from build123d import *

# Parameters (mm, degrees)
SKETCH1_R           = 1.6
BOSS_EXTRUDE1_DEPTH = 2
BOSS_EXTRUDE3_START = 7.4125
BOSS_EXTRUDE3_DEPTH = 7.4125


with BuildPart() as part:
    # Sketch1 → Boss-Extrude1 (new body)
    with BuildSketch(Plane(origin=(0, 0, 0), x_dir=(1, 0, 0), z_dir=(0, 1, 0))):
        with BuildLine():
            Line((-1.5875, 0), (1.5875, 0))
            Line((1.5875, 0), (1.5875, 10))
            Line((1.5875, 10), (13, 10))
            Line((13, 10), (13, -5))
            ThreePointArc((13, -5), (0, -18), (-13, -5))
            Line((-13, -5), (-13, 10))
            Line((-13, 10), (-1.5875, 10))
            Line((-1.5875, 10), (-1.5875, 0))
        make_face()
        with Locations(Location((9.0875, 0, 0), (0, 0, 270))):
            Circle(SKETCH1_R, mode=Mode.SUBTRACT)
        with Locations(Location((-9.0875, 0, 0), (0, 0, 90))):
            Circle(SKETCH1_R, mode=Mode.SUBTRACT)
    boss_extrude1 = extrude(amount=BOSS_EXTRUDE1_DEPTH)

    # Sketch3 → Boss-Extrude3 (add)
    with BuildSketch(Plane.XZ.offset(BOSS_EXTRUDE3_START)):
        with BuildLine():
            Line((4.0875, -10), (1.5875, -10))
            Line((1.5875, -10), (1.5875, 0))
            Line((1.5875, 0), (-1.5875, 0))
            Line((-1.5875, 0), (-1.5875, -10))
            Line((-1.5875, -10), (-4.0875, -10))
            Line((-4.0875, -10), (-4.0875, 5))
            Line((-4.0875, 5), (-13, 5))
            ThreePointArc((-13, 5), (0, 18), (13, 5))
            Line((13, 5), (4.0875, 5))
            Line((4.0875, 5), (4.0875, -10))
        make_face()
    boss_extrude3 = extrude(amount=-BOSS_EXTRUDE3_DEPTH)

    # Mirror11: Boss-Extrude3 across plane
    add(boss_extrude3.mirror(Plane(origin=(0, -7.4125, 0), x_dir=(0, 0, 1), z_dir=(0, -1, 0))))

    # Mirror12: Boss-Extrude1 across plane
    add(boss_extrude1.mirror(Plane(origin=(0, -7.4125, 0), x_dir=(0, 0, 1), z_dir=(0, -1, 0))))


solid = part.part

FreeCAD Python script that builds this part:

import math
import FreeCAD as App
import Part
import Sketcher
from FreeCAD import Vector
Q = App.Units.Quantity

doc = App.newDocument("Part")
body = doc.addObject("PartDesign::Body", "Body")

sketch1 = body.newObject("Sketcher::SketchObject", "Sketch")
sketch1.AttachmentSupport = (doc.getObject("XZ_Plane"), [""])
sketch1.MapMode = "FlatFace"
sketch1.addGeometry([
    Part.LineSegment(Vector(1.5875, 0, 0), Vector(-1.5875, 0, 0)),
    Part.LineSegment(Vector(-1.5875, 0, 0), Vector(-1.5875, -10, 0)),
    Part.LineSegment(Vector(-1.5875, -10, 0), Vector(-13, -10, 0)),
    Part.LineSegment(Vector(-13, -10, 0), Vector(-13, 5, 0)),
    Part.ArcOfCircle(Part.Circle(Vector(0, 5, 0), Vector(0, 0, 1), 13), math.radians(0), math.radians(180)),
    Part.LineSegment(Vector(13, 5, 0), Vector(13, -10, 0)),
    Part.LineSegment(Vector(13, -10, 0), Vector(1.5875, -10, 0)),
    Part.LineSegment(Vector(1.5875, -10, 0), Vector(1.5875, 0, 0)),
    Part.Circle(Vector(9.0875, 0, 0), Vector(0, 0, 1), 1.6),
    Part.Circle(Vector(-9.0875, 0, 0), Vector(0, 0, 1), 1.6),
], False)
sketch1.addConstraint([
    Sketcher.Constraint("Coincident", 0, 2, 1, 1),
    Sketcher.Constraint("Coincident", 1, 2, 2, 1),
    Sketcher.Constraint("Coincident", 2, 2, 3, 1),
    Sketcher.Constraint("Tangent", 3, 2, 4, 2),
    Sketcher.Constraint("Tangent", 4, 1, 5, 1),
    Sketcher.Constraint("Coincident", 5, 2, 6, 1),
    Sketcher.Constraint("Coincident", 6, 2, 7, 1),
    Sketcher.Constraint("Coincident", 7, 2, 0, 1),
    Sketcher.Constraint("Horizontal", 0),
    Sketcher.Constraint("Vertical", 1),
    Sketcher.Constraint("Horizontal", 2),
    Sketcher.Constraint("Vertical", 3),
    Sketcher.Constraint("Vertical", 5),
    Sketcher.Constraint("Horizontal", 6),
    Sketcher.Constraint("Vertical", 7),
    Sketcher.Constraint("Equal", 8, 9),
    Sketcher.Constraint("Symmetric", 8, 3, 9, 3, -1, 1),
    Sketcher.Constraint("Symmetric", 0, 2, 7, 2, -1, 1),
    Sketcher.Constraint("Symmetric", 2, 2, 5, 2, -2),
    Sketcher.Constraint("PointOnObject", 8, 3, -1),
    Sketcher.Constraint("Radius", 4, Q("13 mm")),
    Sketcher.Constraint("Diameter", 8, Q("3.2 mm")),
    Sketcher.Constraint("DistanceY", 1, 2, 1, 1, Q("10 mm")),
    Sketcher.Constraint("DistanceY", 3, 1, 3, 2, Q("15 mm")),
    Sketcher.Constraint("DistanceX", 9, 3, 0, 2, Q("7.5 mm")),
    Sketcher.Constraint("DistanceX", 0, 2, 0, 1, Q("3.175 mm")),
])
pad1 = body.newObject("PartDesign::Pad", "Pad")
pad1.Profile = sketch1
pad1.Length = 2
pad1.Reversed = True

sketch2 = body.newObject("Sketcher::SketchObject", "Sketch001")
sketch2.AttachmentSupport = (doc.getObject("XZ_Plane"), [""])
sketch2.MapMode = "FlatFace"
sketch2.AttachmentOffset = App.Placement(Vector(0, 0, 7.4125), App.Rotation())
sketch2.addGeometry([
    Part.LineSegment(Vector(1.5875, -10, 0), Vector(4.0875, -10, 0)),
    Part.LineSegment(Vector(4.0875, -10, 0), Vector(4.0875, 5, 0)),
    Part.LineSegment(Vector(4.0875, 5, 0), Vector(13, 5, 0)),
    Part.ArcOfCircle(Part.Circle(Vector(0, 5, 0), Vector(0, 0, 1), 13), math.radians(0), math.radians(180)),
    Part.LineSegment(Vector(-13, 5, 0), Vector(-4.0875, 5, 0)),
    Part.LineSegment(Vector(-4.0875, 5, 0), Vector(-4.0875, -10, 0)),
    Part.LineSegment(Vector(-4.0875, -10, 0), Vector(-1.5875, -10, 0)),
    Part.LineSegment(Vector(-1.5875, -10, 0), Vector(-1.5875, 0, 0)),
    Part.LineSegment(Vector(-1.5875, 0, 0), Vector(1.5875, 0, 0)),
    Part.LineSegment(Vector(1.5875, 0, 0), Vector(1.5875, -10, 0)),
], False)
sketch2.addConstraint([
    Sketcher.Constraint("Coincident", 0, 2, 1, 1),
    Sketcher.Constraint("Coincident", 1, 2, 2, 1),
    Sketcher.Constraint("Coincident", 2, 2, 3, 1),
    Sketcher.Constraint("Coincident", 3, 2, 4, 1),
    Sketcher.Constraint("Coincident", 4, 2, 5, 1),
    Sketcher.Constraint("Coincident", 5, 2, 6, 1),
    Sketcher.Constraint("Coincident", 6, 2, 7, 1),
    Sketcher.Constraint("Coincident", 7, 2, 8, 1),
    Sketcher.Constraint("Coincident", 8, 2, 9, 1),
    Sketcher.Constraint("Coincident", 9, 2, 0, 1),
    Sketcher.Constraint("Horizontal", 0),
    Sketcher.Constraint("Vertical", 1),
    Sketcher.Constraint("Horizontal", 2),
    Sketcher.Constraint("Horizontal", 4),
    Sketcher.Constraint("Vertical", 5),
    Sketcher.Constraint("Horizontal", 6),
    Sketcher.Constraint("Vertical", 7),
    Sketcher.Constraint("Horizontal", 8),
    Sketcher.Constraint("Vertical", 9),
    Sketcher.Constraint("Symmetric", 7, 2, 8, 2, -1, 1),
    Sketcher.Constraint("Symmetric", 2, 2, 3, 2, -2),
    Sketcher.Constraint("Symmetric", 0, 2, 5, 2, -2),
    Sketcher.Constraint("Horizontal", 3, 3, 1, 2),
    Sketcher.Constraint("Radius", 3, Q("13 mm")),
    Sketcher.Constraint("DistanceY", 1, 1, 1, 2, Q("15 mm")),
    Sketcher.Constraint("DistanceY", 7, 1, 7, 2, Q("10 mm")),
    Sketcher.Constraint("DistanceX", 0, 1, 0, 2, Q("2.5 mm")),
    Sketcher.Constraint("DistanceX", 8, 1, 8, 2, Q("3.175 mm")),
])
pad2 = body.newObject("PartDesign::Pad", "Pad001")
pad2.Profile = sketch2
pad2.Length = 7.4125
pad2.Reversed = True
doc.recompute()

datumplane = body.newObject("PartDesign::Plane", "DatumPlane")
datumplane.AttachmentSupport = (doc.getObject("XZ_Plane"), [""])
datumplane.MapMode = "FlatFace"
datumplane.AttachmentOffset = App.Placement(Vector(0, 0, 7.4125), App.Rotation())
mirrored = body.newObject("PartDesign::Mirrored", "Mirrored")
mirrored.Originals = [pad2]
mirrored.MirrorPlane = (datumplane, [""])
body.Tip = mirrored
doc.recompute()

datumplane2 = body.newObject("PartDesign::Plane", "DatumPlane001")
datumplane2.AttachmentSupport = (doc.getObject("XZ_Plane"), [""])
datumplane2.MapMode = "FlatFace"
datumplane2.AttachmentOffset = App.Placement(Vector(0, 0, 7.4125), App.Rotation())
mirrored2 = body.newObject("PartDesign::Mirrored", "Mirrored001")
mirrored2.Originals = [pad1]
mirrored2.MirrorPlane = (datumplane2, [""])
body.Tip = mirrored2

doc.recompute()
